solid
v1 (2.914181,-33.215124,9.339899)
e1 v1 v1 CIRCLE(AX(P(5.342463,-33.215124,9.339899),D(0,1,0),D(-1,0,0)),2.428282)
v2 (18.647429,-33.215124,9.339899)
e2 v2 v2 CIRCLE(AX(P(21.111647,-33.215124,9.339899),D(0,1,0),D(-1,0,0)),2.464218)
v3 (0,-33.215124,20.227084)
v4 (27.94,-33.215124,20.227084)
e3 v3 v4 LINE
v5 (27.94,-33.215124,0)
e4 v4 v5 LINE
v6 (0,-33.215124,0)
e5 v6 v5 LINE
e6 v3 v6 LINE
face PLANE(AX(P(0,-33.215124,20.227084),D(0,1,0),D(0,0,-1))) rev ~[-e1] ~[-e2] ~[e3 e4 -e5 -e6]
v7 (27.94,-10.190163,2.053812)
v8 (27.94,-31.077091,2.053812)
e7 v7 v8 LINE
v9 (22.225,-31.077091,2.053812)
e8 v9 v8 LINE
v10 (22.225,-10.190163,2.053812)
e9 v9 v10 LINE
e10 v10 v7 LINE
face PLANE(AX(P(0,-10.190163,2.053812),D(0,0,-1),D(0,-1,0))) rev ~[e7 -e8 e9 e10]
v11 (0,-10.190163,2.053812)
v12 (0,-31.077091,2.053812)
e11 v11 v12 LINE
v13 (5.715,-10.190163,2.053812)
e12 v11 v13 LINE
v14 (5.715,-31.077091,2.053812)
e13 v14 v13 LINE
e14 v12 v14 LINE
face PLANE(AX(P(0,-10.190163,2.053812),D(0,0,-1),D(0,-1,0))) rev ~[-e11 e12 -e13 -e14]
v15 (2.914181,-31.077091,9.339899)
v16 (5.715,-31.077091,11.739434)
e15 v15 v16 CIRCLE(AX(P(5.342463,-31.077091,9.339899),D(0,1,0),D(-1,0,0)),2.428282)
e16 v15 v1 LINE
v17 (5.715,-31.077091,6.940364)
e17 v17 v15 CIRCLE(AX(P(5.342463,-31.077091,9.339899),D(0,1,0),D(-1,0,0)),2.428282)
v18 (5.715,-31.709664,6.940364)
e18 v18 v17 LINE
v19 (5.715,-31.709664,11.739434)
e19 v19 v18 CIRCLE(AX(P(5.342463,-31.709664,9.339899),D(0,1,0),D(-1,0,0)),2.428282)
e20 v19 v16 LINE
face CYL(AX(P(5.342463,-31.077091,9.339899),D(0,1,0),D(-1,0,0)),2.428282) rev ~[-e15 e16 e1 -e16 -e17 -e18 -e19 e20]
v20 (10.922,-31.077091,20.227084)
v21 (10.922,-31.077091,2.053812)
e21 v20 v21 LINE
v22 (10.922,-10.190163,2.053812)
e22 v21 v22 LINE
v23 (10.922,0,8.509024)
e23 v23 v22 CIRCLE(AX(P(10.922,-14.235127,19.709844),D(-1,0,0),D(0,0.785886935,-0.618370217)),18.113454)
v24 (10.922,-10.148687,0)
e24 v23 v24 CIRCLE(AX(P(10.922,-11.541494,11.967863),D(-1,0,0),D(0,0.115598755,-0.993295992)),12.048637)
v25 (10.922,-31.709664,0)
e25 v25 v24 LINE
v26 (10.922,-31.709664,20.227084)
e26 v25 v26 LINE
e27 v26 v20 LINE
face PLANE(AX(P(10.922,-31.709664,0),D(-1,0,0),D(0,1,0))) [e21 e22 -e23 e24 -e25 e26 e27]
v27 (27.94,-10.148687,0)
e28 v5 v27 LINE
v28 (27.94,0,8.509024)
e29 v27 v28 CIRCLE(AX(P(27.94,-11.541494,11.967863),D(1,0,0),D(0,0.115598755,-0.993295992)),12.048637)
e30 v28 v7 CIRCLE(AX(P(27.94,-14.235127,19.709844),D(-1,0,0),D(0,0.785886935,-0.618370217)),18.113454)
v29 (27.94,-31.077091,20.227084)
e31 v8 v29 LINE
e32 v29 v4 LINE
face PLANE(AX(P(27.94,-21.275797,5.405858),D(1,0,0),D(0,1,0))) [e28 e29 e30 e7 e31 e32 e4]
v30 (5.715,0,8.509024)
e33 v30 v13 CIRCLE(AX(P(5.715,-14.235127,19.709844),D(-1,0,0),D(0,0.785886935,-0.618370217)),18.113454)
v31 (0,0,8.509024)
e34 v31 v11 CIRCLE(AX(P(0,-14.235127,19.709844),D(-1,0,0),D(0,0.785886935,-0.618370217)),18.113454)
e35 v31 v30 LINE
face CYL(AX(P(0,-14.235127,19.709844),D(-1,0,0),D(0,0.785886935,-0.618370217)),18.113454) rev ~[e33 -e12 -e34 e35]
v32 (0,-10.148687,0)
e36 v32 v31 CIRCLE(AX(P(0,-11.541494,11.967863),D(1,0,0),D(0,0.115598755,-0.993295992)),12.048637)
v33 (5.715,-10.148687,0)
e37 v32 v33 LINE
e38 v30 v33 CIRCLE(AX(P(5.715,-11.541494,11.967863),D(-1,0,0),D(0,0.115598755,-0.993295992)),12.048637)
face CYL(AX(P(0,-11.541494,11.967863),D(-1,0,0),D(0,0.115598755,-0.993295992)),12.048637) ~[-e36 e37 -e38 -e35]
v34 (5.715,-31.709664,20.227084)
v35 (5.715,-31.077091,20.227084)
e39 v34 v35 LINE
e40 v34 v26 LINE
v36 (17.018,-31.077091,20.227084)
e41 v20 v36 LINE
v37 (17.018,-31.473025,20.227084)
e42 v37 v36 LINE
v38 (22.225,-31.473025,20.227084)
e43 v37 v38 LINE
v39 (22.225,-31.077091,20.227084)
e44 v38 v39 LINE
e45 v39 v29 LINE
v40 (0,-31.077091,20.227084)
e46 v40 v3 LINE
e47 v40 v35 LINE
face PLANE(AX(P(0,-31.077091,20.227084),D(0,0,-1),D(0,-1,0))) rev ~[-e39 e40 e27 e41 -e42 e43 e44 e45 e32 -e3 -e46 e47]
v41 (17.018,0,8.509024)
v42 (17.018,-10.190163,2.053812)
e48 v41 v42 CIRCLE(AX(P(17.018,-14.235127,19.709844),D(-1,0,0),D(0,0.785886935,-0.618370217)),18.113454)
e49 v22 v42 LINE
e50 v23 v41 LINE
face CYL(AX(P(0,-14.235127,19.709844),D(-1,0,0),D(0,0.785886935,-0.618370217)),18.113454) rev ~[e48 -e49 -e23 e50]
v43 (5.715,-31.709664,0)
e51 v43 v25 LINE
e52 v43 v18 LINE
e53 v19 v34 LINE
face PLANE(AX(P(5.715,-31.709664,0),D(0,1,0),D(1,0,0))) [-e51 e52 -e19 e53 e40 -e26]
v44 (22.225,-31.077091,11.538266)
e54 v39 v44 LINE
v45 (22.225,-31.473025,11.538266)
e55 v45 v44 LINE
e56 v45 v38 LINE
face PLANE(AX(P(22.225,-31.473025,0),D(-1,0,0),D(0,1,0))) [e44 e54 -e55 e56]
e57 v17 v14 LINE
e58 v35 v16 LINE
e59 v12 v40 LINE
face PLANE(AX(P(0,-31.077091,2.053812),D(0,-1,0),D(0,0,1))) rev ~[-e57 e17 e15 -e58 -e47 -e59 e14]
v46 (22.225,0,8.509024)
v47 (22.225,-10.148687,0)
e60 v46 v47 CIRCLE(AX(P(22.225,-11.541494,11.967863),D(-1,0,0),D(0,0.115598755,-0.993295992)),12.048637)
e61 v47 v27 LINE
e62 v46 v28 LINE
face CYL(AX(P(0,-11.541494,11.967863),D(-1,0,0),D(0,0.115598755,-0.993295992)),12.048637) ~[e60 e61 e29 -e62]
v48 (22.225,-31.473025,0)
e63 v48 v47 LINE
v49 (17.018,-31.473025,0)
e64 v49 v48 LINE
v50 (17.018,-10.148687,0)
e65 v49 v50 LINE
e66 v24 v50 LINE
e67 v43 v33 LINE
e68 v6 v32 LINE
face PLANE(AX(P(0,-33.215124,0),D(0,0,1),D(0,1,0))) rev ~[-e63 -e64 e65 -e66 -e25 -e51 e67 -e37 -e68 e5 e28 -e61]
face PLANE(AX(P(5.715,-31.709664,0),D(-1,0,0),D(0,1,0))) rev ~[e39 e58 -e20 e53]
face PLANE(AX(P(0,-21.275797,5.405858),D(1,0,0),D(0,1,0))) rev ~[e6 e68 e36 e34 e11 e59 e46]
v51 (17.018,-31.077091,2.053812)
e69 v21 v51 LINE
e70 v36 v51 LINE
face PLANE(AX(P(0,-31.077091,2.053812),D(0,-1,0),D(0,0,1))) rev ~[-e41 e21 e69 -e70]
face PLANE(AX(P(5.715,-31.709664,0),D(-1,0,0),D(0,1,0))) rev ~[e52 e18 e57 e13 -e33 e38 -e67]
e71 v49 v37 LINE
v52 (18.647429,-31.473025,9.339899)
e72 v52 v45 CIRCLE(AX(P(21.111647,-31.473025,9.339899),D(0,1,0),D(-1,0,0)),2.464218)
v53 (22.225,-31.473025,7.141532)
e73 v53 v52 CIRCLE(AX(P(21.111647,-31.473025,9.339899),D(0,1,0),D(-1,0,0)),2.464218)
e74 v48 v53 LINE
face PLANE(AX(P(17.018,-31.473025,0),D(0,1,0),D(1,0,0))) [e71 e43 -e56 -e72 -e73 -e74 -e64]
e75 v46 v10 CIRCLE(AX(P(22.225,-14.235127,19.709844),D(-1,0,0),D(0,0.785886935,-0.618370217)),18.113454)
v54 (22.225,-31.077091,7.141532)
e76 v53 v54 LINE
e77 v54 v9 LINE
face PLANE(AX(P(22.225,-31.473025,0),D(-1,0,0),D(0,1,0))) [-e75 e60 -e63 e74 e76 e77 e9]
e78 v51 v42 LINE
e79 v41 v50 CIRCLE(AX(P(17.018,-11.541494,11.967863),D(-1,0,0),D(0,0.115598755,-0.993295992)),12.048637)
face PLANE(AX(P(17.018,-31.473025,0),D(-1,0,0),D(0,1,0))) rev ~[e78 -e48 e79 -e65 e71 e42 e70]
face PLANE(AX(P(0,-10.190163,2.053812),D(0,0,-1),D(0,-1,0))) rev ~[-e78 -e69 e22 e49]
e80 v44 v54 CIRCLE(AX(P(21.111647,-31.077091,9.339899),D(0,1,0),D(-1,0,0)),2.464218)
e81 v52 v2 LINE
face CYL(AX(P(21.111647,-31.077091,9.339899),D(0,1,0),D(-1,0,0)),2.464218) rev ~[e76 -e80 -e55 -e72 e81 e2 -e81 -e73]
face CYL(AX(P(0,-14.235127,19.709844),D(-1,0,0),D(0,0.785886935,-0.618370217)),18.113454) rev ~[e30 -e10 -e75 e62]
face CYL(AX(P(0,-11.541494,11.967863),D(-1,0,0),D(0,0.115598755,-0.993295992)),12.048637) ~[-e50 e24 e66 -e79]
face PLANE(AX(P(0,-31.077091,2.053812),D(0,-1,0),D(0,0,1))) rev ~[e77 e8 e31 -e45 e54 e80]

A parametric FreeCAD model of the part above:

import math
import FreeCAD as App
import Part
import Sketcher
from FreeCAD import Vector
Q = App.Units.Quantity


def add_polygon(sketch, points):
    """Adds a closed chain of lines whose ends are joined by coincident constraints."""
    first, n = sketch.GeometryCount, len(points)
    for a, b in zip(points, points[1:] + points[:1]):
        sketch.addGeometry(Part.LineSegment(App.Vector(*a, 0), App.Vector(*b, 0)), False)
    for i in range(n):
        sketch.addConstraint(Sketcher.Constraint("Coincident", first + i, 2, first + (i + 1) % n, 1))

doc = App.newDocument("Part")
params = doc.addObject("Spreadsheet::Sheet", "Params")
for row, (alias, value) in enumerate([
    ("pad1_length", "1.1 in"),
    ("pocket1_length", "0.2 in"),
    ("sketch3_width", "0.205 in"),
    ("pocket2_length", "0.93 in"),
], start=1):
    params.set(f"A{row}", alias)
    params.set(f"B{row}", "=" + value)
    params.setAlias(f"B{row}", alias)

body = doc.addObject("PartDesign::Body", "Body")

# Sketch on YZ plane
sketch1 = doc.addObject("Sketcher::SketchObject", "Sketch")
body.addObject(sketch1)
sketch1.AttachmentSupport = (doc.YZ_Plane, [""])
sketch1.MapMode = "FlatFace"
sketch1.addGeometry(Part.LineSegment(Vector(-33.2, 0, 0), Vector(-10.1, 0, 0)), False)
sketch1.addGeometry(Part.ArcOfCircle(Part.Circle(Vector(-11.5, 12, 0), Vector(0, 0, 1), 12), math.radians(-83), math.radians(-17)), False)
sketch1.addGeometry(Part.ArcOfCircle(Part.Circle(Vector(-14.2, 19.7, 0), Vector(0, 0, 1), 18.1), math.radians(-77), math.radians(-38)), False)
sketch1.addGeometry(Part.LineSegment(Vector(-10.2, 2.1, 0), Vector(-31.1, 2.1, 0)), False)
sketch1.addGeometry(Part.LineSegment(Vector(-31.1, 2.1, 0), Vector(-31.1, 20.2, 0)), False)
sketch1.addGeometry(Part.LineSegment(Vector(-31.1, 20.2, 0), Vector(-33.2, 20.2, 0)), False)
sketch1.addGeometry(Part.LineSegment(Vector(-33.2, 20.2, 0), Vector(-33.2, 0, 0)), False)
sketch1.addConstraint(Sketcher.Constraint("Coincident", 0, 2, 1, 1))
sketch1.addConstraint(Sketcher.Constraint("Coincident", 1, 2, 2, 2))
sketch1.addConstraint(Sketcher.Constraint("Coincident", 2, 1, 3, 1))
sketch1.addConstraint(Sketcher.Constraint("Coincident", 3, 2, 4, 1))
sketch1.addConstraint(Sketcher.Constraint("Coincident", 4, 2, 5, 1))
sketch1.addConstraint(Sketcher.Constraint("Coincident", 5, 2, 6, 1))
sketch1.addConstraint(Sketcher.Constraint("Coincident", 6, 2, 0, 1))
sketch1.addConstraint(Sketcher.Constraint("Horizontal", 0))
sketch1.addConstraint(Sketcher.Constraint("Horizontal", 3))
sketch1.addConstraint(Sketcher.Constraint("Vertical", 4))
sketch1.addConstraint(Sketcher.Constraint("Horizontal", 5))
sketch1.addConstraint(Sketcher.Constraint("Vertical", 6))
sketch1.addConstraint(Sketcher.Constraint("PointOnObject", 0, 2, -1))
sketch1.addConstraint(Sketcher.Constraint("PointOnObject", 1, 2, -2))
sketch1.addConstraint(Sketcher.Constraint("Radius", 1, 12.048637))
sketch1.addConstraint(Sketcher.Constraint("Radius", 2, 18.113454))
sketch1.addConstraint(Sketcher.Constraint("DistanceX", 0, 1, 0, 2, 23.066437))
sketch1.addConstraint(Sketcher.Constraint("DistanceX", 3, 2, 3, 1, 20.886928))
sketch1.addConstraint(Sketcher.Constraint("DistanceX", 5, 2, 5, 1, 2.138033))
sketch1.addConstraint(Sketcher.Constraint("DistanceY", 4, 1, 4, 2, 18.173272))
sketch1.addConstraint(Sketcher.Constraint("DistanceY", 6, 2, 6, 1, 20.227084))
sketch1.addConstraint(Sketcher.Constraint("DistanceX", 3, 2, -1, 1, 31.077091))
sketch1.addConstraint(Sketcher.Constraint("DistanceY", 1, 3, 2, 3, 7.741981))
pad1 = doc.addObject("PartDesign::Pad", "Pad")
body.addObject(pad1)
pad1.Profile = sketch1
pad1.setExpression("Length", "Params.pad1_length")

# Sketch on XZ plane
sketch2 = doc.addObject("Sketcher::SketchObject", "Sketch001")
body.addObject(sketch2)
sketch2.AttachmentSupport = (doc.XZ_Plane, [""])
sketch2.MapMode = "FlatFace"
sketch2.AttachmentOffset = App.Placement(Vector(0, 0, 31.077091), App.Rotation())
sketch2.addGeometry(Part.Circle(Vector(5.3, 9.3, 0), Vector(0, 0, 1), 2.4), False)
sketch2.addGeometry(Part.Circle(Vector(21.1, 9.3, 0), Vector(0, 0, 1), 2.5), False)
sketch2.addConstraint(Sketcher.Constraint("Horizontal", 0, 3, 1, 3))
sketch2.addConstraint(Sketcher.Constraint("Diameter", 0, 4.856564))
sketch2.addConstraint(Sketcher.Constraint("Diameter", 1, 4.928436))
sketch2.addConstraint(Sketcher.Constraint("DistanceY", -1, 1, 0, 3, 9.339899))
sketch2.addConstraint(Sketcher.Constraint("DistanceX", -1, 1, 0, 3, 5.342463))
sketch2.addConstraint(Sketcher.Constraint("DistanceX", -1, 1, 1, 3, 21.111647))
pocket1 = doc.addObject("PartDesign::Pocket", "Pocket")
body.addObject(pocket1)
pocket1.Profile = sketch2
pocket1.setExpression("Length", "Params.pocket1_length")
pocket1.Reversed = True

# Sketch on XY plane
sketch3 = doc.addObject("Sketcher::SketchObject", "Sketch002")
body.addObject(sketch3)
sketch3.AttachmentSupport = (doc.XY_Plane, [""])
sketch3.MapMode = "FlatFace"
add_polygon(sketch3, [(6, 0), (6, -32), (11, -32), (11, 0)])  # lines 0-3
add_polygon(sketch3, [(17, 0), (17, -31), (22, -31), (22, 0)])  # lines 4-7
sketch3.addConstraint(Sketcher.Constraint("Vertical", 0))
sketch3.addConstraint(Sketcher.Constraint("Horizontal", 1))
sketch3.addConstraint(Sketcher.Constraint("Vertical", 2))
sketch3.addConstraint(Sketcher.Constraint("Horizontal", 3))
sketch3.addConstraint(Sketcher.Constraint("Vertical", 4))
sketch3.addConstraint(Sketcher.Constraint("Horizontal", 5))
sketch3.addConstraint(Sketcher.Constraint("Vertical", 6))
sketch3.addConstraint(Sketcher.Constraint("Horizontal", 7))
sketch3.addConstraint(Sketcher.Constraint("PointOnObject", 2, 2, -1))
sketch3.addConstraint(Sketcher.Constraint("PointOnObject", 6, 2, -1))
sketch3.addConstraint(Sketcher.Constraint("Equal", 3, 5))
sketch3.addConstraint(Sketcher.Constraint("DistanceX", 1, 1, 1, 2, Q("0.205 in")))
sketch3.addConstraint(Sketcher.Constraint("DistanceX", -1, 1, 1, 2, Q("0.43 in")))
sketch3.addConstraint(Sketcher.Constraint("DistanceX", -1, 1, 4, 2, Q("0.67 in")))
sketch3.addConstraint(Sketcher.Constraint("DistanceY", 0, 2, 0, 1, 31.709664))
sketch3.addConstraint(Sketcher.Constraint("DistanceY", 4, 2, 4, 1, 31.473025))
sketch3.setExpression("Constraints[19]", "Params.sketch3_width")
pocket2 = doc.addObject("PartDesign::Pocket", "Pocket001")
body.addObject(pocket2)
pocket2.Profile = sketch3
pocket2.setExpression("Length", "Params.pocket2_length")
pocket2.Reversed = True

doc.recompute()
